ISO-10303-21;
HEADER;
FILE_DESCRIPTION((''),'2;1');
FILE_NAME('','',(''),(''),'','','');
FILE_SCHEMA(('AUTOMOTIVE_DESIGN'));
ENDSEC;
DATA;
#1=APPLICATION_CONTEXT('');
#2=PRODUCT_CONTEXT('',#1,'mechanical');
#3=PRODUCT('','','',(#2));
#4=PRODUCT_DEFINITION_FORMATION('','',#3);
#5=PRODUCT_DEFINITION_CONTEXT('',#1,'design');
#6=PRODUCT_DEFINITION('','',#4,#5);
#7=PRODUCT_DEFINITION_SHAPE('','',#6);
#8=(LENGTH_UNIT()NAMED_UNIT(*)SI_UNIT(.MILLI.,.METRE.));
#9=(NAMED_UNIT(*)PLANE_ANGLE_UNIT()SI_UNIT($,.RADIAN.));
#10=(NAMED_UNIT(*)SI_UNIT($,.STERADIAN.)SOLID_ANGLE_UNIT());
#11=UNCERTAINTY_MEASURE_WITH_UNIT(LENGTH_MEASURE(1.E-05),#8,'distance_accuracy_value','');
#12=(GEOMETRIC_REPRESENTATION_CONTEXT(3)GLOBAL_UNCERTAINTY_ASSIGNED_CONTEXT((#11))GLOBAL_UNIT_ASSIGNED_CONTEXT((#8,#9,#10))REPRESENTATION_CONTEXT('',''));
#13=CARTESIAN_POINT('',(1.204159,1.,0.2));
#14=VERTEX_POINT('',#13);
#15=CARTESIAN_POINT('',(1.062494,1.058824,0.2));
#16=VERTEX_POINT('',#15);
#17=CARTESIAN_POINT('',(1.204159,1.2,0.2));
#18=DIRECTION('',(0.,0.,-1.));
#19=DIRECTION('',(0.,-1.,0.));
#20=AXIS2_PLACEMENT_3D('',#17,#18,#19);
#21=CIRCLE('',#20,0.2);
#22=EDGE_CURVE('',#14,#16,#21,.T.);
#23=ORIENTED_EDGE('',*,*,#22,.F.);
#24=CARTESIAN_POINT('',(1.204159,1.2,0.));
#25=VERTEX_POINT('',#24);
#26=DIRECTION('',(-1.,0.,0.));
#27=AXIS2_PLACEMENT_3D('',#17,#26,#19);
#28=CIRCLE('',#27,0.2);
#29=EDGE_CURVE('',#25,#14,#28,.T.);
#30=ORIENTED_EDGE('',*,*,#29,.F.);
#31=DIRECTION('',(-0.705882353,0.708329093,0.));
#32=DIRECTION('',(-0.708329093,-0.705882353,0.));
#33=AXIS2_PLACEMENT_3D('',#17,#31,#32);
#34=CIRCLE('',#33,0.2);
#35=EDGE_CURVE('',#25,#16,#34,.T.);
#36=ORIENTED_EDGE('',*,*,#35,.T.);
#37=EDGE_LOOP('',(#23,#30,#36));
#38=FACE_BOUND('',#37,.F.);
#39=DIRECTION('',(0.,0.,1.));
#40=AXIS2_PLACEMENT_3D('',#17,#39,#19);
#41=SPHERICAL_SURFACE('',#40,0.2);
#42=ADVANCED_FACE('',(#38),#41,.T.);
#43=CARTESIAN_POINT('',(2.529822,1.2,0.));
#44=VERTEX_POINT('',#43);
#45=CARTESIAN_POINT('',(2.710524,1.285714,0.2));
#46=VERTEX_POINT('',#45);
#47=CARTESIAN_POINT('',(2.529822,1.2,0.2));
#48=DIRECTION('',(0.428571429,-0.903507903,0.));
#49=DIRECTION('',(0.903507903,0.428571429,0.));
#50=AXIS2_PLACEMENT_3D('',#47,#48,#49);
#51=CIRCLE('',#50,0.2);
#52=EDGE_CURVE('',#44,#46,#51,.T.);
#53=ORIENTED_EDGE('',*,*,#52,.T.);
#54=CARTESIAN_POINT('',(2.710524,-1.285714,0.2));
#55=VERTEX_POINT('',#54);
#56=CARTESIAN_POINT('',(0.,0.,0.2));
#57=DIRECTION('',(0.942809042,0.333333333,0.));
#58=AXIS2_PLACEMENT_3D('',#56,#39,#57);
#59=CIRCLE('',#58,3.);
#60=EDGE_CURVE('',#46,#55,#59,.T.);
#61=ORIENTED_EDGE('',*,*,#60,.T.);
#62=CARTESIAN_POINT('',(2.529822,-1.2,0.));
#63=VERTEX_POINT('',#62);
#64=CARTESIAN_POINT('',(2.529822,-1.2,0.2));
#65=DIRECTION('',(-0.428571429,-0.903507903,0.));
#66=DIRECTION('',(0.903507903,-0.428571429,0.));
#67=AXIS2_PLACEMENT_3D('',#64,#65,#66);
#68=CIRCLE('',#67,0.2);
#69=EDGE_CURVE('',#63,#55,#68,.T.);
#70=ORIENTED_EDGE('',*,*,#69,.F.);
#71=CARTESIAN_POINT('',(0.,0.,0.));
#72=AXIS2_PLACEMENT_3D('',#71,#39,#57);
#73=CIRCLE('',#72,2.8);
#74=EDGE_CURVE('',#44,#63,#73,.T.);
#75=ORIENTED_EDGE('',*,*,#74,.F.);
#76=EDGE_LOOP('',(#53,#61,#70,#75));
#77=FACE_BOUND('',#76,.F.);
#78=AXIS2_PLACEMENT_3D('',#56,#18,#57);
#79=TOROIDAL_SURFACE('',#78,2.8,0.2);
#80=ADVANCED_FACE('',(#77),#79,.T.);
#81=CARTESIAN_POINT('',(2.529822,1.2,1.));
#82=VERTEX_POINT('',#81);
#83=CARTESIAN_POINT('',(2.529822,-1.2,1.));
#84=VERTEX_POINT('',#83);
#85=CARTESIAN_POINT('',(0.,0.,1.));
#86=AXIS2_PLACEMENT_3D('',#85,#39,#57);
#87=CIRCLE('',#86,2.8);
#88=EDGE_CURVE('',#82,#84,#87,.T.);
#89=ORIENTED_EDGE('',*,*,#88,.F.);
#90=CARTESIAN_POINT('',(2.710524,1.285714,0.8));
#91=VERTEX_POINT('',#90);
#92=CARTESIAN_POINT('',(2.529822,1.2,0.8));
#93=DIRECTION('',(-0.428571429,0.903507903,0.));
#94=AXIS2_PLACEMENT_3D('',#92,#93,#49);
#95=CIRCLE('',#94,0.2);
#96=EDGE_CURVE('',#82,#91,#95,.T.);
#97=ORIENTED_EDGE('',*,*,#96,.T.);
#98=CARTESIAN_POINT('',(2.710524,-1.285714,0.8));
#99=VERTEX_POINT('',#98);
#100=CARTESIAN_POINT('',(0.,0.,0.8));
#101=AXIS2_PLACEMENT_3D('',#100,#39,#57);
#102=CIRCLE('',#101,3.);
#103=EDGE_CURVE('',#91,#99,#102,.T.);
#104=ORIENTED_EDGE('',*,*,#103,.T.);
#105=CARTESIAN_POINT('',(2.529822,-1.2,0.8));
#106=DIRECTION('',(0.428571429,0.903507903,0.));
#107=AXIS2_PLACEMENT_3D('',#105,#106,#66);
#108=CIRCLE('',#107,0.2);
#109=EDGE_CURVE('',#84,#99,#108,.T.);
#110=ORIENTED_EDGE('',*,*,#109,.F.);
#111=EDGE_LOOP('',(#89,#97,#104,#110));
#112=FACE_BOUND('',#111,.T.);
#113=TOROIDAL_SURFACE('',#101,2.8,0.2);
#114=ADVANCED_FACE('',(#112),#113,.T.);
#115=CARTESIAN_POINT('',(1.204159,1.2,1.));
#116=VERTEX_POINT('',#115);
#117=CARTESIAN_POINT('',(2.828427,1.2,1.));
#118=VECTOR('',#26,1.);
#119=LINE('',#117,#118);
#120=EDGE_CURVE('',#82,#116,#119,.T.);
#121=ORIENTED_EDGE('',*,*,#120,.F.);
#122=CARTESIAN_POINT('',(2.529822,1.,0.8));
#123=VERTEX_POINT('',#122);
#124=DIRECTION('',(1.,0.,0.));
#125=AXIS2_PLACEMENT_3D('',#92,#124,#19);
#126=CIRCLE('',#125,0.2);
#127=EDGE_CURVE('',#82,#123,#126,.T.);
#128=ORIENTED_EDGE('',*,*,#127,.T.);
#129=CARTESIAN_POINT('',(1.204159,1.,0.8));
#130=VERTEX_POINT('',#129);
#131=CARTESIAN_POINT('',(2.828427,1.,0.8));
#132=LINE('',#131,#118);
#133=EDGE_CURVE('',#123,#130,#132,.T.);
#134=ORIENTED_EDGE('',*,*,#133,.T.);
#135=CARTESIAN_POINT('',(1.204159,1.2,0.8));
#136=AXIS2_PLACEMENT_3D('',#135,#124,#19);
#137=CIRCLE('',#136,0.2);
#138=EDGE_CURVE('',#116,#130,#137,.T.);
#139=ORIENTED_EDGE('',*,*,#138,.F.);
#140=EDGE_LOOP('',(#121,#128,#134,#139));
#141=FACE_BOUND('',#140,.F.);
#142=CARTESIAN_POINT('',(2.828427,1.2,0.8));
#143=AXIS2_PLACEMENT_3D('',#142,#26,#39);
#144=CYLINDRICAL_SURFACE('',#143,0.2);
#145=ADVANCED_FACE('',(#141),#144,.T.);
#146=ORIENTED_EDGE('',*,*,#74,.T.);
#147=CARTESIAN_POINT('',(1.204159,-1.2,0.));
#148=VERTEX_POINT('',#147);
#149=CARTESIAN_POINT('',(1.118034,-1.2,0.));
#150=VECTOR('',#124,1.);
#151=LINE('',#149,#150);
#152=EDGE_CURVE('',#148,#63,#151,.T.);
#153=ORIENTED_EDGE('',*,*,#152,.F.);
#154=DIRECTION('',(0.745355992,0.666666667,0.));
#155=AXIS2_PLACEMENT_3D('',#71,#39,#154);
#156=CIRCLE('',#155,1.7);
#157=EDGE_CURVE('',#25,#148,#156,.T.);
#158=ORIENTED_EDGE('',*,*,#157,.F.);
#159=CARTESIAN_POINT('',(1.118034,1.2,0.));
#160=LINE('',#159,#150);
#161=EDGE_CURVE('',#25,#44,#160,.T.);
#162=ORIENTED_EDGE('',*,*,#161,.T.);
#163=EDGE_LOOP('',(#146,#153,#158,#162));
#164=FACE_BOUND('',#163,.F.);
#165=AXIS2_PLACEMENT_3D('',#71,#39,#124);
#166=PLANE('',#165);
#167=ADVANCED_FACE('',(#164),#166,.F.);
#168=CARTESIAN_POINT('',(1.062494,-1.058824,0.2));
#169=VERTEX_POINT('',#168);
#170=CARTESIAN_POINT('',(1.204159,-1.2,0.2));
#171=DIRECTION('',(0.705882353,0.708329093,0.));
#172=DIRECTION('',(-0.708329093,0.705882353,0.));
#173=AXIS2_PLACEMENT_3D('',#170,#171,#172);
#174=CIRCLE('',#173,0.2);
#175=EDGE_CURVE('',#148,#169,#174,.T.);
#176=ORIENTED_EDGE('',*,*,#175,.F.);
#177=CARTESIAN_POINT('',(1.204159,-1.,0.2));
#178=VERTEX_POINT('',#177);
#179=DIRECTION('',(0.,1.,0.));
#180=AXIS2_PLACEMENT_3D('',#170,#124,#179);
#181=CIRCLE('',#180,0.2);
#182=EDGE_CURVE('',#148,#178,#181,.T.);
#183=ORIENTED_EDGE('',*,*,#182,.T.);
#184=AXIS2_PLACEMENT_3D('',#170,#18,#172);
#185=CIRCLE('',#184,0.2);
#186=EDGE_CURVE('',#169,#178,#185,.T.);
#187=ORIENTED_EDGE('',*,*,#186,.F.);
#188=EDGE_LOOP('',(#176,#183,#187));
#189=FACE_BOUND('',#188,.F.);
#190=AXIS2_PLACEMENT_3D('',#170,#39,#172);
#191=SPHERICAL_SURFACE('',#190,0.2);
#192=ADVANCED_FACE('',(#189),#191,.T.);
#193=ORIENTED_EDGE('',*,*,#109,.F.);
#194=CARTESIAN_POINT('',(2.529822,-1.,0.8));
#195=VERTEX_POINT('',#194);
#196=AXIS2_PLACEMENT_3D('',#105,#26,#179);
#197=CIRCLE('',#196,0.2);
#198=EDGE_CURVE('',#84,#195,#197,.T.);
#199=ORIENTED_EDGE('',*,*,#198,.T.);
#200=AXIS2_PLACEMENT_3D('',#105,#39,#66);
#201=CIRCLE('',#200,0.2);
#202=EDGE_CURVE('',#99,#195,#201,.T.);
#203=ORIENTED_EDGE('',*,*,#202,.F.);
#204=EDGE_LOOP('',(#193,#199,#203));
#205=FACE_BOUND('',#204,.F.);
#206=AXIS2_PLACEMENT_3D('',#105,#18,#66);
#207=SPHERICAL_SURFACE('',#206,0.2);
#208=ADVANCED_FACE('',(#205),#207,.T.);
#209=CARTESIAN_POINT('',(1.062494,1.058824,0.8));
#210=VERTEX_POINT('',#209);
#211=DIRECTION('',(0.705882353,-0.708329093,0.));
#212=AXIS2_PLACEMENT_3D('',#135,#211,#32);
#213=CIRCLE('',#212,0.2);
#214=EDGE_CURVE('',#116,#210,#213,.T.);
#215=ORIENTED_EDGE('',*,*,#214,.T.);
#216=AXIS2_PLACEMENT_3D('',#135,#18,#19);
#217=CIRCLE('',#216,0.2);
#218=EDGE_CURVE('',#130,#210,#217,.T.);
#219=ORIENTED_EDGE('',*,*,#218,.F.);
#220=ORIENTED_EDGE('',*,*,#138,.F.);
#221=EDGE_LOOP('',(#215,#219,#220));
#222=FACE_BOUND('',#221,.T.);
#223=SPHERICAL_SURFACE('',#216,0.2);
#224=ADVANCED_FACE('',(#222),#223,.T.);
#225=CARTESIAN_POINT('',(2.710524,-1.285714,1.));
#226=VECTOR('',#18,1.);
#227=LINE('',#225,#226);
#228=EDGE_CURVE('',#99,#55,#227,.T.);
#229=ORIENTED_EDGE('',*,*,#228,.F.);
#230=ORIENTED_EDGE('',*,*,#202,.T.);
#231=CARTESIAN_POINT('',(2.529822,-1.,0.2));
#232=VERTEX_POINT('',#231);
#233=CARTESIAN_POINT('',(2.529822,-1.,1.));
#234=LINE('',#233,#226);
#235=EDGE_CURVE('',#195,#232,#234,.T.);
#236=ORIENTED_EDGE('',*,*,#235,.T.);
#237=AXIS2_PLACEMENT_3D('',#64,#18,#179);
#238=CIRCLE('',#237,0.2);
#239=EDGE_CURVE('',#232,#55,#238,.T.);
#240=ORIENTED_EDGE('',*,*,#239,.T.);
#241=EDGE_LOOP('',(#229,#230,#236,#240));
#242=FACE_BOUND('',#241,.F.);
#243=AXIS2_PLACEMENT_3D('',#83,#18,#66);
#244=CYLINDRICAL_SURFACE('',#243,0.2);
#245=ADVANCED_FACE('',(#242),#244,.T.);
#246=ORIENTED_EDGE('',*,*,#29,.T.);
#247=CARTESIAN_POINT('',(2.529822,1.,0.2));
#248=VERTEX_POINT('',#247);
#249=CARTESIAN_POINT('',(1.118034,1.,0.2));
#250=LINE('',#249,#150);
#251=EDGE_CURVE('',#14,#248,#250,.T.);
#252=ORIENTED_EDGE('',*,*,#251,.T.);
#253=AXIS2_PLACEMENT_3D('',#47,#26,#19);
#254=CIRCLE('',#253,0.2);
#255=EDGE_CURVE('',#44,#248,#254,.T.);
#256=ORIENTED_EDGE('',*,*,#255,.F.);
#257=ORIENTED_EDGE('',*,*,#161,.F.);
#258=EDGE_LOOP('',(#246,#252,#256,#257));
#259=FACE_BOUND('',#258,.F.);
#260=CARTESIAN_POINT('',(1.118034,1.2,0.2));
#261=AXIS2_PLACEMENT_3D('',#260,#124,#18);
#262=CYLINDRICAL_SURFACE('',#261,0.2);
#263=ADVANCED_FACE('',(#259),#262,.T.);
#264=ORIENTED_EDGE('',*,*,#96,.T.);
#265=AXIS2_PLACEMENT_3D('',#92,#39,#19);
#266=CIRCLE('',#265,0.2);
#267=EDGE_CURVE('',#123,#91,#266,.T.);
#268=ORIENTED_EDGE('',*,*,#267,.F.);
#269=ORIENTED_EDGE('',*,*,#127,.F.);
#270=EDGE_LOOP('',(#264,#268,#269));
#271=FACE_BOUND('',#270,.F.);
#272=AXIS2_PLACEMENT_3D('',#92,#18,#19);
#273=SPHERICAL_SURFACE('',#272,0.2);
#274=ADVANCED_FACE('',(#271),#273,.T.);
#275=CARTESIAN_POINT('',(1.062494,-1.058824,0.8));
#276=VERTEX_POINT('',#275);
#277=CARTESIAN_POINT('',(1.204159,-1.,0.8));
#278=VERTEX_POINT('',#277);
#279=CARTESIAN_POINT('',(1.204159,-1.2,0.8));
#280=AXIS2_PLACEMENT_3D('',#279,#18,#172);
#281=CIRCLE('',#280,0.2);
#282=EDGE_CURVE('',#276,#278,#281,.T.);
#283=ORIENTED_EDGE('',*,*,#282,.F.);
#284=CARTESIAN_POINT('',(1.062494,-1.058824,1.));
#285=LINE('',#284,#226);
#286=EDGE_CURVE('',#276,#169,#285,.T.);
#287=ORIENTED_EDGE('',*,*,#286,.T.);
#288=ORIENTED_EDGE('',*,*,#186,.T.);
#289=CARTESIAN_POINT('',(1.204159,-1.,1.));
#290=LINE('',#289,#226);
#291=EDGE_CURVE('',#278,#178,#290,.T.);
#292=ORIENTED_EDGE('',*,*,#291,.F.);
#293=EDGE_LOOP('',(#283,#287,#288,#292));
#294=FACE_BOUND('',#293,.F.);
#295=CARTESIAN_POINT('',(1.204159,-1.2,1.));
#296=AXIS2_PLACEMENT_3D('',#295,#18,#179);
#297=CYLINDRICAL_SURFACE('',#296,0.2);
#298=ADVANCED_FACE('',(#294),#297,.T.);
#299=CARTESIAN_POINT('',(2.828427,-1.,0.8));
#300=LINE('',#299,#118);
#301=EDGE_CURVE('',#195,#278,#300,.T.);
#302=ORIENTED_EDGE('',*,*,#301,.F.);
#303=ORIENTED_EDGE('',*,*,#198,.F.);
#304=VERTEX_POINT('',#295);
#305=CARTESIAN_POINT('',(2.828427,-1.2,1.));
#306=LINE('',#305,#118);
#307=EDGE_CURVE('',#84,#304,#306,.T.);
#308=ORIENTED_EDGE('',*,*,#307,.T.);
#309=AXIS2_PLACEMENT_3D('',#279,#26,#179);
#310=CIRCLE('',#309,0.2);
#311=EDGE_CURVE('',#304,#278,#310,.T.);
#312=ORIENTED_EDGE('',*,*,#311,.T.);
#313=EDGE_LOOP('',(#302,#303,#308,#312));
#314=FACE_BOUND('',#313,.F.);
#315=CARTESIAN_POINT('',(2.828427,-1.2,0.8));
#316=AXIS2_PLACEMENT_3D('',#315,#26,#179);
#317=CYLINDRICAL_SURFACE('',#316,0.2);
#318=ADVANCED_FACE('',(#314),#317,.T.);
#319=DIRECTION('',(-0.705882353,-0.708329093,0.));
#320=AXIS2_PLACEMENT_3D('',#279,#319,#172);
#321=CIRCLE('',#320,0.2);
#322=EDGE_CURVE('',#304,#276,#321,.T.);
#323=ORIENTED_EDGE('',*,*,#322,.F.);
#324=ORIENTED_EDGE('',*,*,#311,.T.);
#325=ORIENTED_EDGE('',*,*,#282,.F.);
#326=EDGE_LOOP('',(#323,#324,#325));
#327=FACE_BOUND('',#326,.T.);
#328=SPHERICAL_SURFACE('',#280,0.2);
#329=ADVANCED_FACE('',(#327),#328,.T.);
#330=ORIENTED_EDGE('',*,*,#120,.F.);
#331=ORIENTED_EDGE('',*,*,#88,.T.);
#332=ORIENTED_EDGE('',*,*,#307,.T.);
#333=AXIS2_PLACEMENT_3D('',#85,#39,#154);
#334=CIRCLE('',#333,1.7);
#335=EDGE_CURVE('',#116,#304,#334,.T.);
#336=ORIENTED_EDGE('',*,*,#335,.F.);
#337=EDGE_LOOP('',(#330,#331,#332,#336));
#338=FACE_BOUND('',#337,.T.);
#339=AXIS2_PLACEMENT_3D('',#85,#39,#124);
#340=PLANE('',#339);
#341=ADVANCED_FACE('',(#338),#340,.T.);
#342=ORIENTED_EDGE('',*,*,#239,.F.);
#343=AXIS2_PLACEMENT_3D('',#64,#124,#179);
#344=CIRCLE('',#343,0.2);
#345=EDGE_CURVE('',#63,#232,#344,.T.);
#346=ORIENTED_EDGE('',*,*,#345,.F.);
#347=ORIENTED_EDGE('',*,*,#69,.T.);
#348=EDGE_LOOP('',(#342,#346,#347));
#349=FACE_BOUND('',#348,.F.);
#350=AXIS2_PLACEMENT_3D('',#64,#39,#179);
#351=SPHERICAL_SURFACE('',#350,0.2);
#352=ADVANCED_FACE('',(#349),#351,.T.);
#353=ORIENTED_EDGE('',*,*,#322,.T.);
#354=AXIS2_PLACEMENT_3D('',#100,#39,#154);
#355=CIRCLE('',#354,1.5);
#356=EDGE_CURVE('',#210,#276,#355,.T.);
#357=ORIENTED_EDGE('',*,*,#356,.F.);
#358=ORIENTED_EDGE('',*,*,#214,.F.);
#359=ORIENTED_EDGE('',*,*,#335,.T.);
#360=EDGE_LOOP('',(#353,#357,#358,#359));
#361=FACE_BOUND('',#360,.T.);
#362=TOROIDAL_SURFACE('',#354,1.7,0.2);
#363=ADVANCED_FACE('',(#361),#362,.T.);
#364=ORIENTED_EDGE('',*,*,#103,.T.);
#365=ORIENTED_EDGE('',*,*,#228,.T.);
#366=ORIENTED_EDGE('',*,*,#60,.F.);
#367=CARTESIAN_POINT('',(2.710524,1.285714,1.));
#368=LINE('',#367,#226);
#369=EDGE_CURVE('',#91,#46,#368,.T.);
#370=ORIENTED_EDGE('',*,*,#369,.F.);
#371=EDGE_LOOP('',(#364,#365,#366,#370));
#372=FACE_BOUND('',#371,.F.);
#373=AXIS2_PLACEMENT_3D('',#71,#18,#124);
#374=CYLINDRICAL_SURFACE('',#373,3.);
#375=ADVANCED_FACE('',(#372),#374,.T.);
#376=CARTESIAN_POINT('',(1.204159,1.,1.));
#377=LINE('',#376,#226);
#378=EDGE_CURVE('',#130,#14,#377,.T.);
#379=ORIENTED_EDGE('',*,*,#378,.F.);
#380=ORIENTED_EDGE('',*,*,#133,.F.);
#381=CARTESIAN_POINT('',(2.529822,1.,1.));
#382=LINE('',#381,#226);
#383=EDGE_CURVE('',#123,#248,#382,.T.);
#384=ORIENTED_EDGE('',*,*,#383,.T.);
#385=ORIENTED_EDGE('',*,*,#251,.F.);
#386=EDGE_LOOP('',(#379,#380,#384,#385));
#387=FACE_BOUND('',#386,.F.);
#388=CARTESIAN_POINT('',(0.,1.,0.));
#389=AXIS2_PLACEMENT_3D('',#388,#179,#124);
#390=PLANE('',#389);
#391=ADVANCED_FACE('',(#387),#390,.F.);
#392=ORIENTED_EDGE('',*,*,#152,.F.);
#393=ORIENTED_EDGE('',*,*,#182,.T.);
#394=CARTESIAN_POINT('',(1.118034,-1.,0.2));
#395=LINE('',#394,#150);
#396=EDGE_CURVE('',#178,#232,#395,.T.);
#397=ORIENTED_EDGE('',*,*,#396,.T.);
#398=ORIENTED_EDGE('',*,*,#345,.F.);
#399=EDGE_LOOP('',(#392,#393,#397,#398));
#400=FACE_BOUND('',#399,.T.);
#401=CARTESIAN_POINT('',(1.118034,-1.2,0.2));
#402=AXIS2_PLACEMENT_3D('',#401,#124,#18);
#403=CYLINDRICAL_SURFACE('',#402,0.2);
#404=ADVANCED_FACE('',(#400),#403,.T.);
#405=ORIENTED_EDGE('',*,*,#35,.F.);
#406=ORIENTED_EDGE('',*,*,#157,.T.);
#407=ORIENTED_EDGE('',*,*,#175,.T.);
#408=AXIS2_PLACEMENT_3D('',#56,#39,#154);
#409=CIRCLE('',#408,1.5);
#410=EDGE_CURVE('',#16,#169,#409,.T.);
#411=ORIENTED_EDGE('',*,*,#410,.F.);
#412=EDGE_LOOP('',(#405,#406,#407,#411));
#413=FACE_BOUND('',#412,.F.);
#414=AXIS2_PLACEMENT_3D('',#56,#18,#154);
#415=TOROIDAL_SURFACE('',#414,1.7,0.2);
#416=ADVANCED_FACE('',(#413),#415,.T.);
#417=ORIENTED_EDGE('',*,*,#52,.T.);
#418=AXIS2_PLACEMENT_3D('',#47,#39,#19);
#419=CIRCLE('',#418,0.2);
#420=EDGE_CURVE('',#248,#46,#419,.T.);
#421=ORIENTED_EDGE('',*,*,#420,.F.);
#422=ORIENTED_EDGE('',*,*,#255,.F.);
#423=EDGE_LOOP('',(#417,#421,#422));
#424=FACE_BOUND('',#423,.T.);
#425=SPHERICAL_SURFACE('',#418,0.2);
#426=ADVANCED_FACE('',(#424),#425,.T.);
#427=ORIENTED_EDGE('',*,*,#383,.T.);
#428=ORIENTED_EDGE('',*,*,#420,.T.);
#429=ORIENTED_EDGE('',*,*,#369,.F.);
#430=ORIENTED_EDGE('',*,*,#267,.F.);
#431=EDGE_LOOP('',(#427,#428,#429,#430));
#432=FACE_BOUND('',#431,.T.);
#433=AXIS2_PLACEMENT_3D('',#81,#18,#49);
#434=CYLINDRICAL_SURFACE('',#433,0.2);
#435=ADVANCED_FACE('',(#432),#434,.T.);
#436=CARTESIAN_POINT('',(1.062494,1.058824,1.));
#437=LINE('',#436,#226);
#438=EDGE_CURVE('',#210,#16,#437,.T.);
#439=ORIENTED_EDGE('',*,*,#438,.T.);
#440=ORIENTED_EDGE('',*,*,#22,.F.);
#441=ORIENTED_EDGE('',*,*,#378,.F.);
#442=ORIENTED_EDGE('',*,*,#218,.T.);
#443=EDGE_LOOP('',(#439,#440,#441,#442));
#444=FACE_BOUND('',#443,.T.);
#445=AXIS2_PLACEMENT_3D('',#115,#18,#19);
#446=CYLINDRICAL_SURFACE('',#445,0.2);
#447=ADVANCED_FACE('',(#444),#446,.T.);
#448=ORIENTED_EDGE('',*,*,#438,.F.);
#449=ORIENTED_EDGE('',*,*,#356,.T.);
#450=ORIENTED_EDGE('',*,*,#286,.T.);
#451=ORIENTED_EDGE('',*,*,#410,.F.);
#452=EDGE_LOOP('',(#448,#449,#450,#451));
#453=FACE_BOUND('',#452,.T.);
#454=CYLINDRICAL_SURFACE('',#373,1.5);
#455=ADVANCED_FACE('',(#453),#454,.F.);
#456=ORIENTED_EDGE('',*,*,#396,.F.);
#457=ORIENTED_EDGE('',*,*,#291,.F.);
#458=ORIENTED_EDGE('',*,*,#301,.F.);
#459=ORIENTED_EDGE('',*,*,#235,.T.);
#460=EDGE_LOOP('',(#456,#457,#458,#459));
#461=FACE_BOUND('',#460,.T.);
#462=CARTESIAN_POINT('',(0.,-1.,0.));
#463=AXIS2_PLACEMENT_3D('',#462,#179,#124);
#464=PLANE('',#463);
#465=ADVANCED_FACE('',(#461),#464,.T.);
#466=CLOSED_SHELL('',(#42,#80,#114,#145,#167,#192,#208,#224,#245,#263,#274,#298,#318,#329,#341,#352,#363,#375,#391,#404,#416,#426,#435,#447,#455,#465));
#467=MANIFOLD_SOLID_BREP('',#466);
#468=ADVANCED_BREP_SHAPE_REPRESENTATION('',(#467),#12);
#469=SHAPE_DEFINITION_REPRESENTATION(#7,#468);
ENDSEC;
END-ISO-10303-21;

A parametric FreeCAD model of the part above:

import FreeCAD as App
import Part
import Sketcher
Q = App.Units.Quantity

doc = App.newDocument("Part")
body = doc.addObject("PartDesign::Body", "Body")

sketch1 = body.newObject("Sketcher::SketchObject", "Sketch")
sketch1.AttachmentSupport = (doc.getObject("XY_Plane"), [""])
sketch1.MapMode = "FlatFace"
sketch1.addGeometry(Part.LineSegment(App.Vector(0, 1, 0), App.Vector(0, -1, 0)), False)
sketch1.addGeometry(Part.LineSegment(App.Vector(0, -1, 0), App.Vector(3, -1, 0)), False)
sketch1.addGeometry(Part.LineSegment(App.Vector(3, -1, 0), App.Vector(3, 1, 0)), False)
sketch1.addGeometry(Part.LineSegment(App.Vector(3, 1, 0), App.Vector(0, 1, 0)), False)
sketch1.addConstraint(Sketcher.Constraint("Coincident", 0, 2, 1, 1))
sketch1.addConstraint(Sketcher.Constraint("Coincident", 1, 2, 2, 1))
sketch1.addConstraint(Sketcher.Constraint("Coincident", 2, 2, 3, 1))
sketch1.addConstraint(Sketcher.Constraint("Coincident", 3, 2, 0, 1))
sketch1.addConstraint(Sketcher.Constraint("Vertical", 0))
sketch1.addConstraint(Sketcher.Constraint("Horizontal", 1))
sketch1.addConstraint(Sketcher.Constraint("Vertical", 2))
sketch1.addConstraint(Sketcher.Constraint("Horizontal", 3))
sketch1.addConstraint(Sketcher.Constraint("Symmetric", 0, 2, 3, 2, -1, 1))
sketch1.addConstraint(Sketcher.Constraint("DistanceX", 1, 1, 1, 2, Q("3 mm")))
sketch1.addConstraint(Sketcher.Constraint("DistanceY", 0, 2, 0, 1, Q("2 mm")))
pad1 = body.newObject("PartDesign::Pad", "Pad")
pad1.Profile = sketch1
pad1.Length = 10
body2 = doc.addObject("PartDesign::Body", "Body001")

sketch2 = body2.newObject("Sketcher::SketchObject", "Sketch001")
sketch2.AttachmentSupport = (doc.getObject("XY_Plane001"), [""])
sketch2.MapMode = "FlatFace"
sketch2.addGeometry(Part.Circle(App.Vector(0, 0, 0), App.Vector(0, 0, 1), 1.5), False)
sketch2.addConstraint(Sketcher.Constraint("Coincident", 0, 3, -1, 1))
sketch2.addConstraint(Sketcher.Constraint("Diameter", 0, Q("3 mm")))
pad2 = body2.newObject("PartDesign::Pad", "Pad001")
pad2.Profile = sketch2
pad2.Length = 1
body3 = doc.addObject("PartDesign::Body", "Body002")

sketch3 = body3.newObject("Sketcher::SketchObject", "Sketch002")
sketch3.AttachmentSupport = (doc.getObject("XY_Plane002"), [""])
sketch3.MapMode = "FlatFace"
sketch3.addGeometry(Part.Circle(App.Vector(0, 0, 0), App.Vector(0, 0, 1), 3), False)
sketch3.addConstraint(Sketcher.Constraint("Coincident", 0, 3, -1, 1))
sketch3.addConstraint(Sketcher.Constraint("Diameter", 0, Q("6 mm")))
pad3 = body3.newObject("PartDesign::Pad", "Pad002")
pad3.Profile = sketch3
pad3.Length = 1
doc.recompute()

boolean = body3.newObject("PartDesign::Boolean", "Boolean")
boolean.Type = "Cut"
boolean.addObjects([body2])
doc.recompute()

boolean2 = body3.newObject("PartDesign::Boolean", "Boolean001")
boolean2.Type = "Cut"
boolean2.addObjects([body])
doc.recompute()

fillet = body3.newObject("PartDesign::Fillet", "Fillet")
fillet.Base = (boolean2, ["Edge1"])
fillet.UseAllEdges = True
fillet.Radius = 0.2

doc.recompute()
